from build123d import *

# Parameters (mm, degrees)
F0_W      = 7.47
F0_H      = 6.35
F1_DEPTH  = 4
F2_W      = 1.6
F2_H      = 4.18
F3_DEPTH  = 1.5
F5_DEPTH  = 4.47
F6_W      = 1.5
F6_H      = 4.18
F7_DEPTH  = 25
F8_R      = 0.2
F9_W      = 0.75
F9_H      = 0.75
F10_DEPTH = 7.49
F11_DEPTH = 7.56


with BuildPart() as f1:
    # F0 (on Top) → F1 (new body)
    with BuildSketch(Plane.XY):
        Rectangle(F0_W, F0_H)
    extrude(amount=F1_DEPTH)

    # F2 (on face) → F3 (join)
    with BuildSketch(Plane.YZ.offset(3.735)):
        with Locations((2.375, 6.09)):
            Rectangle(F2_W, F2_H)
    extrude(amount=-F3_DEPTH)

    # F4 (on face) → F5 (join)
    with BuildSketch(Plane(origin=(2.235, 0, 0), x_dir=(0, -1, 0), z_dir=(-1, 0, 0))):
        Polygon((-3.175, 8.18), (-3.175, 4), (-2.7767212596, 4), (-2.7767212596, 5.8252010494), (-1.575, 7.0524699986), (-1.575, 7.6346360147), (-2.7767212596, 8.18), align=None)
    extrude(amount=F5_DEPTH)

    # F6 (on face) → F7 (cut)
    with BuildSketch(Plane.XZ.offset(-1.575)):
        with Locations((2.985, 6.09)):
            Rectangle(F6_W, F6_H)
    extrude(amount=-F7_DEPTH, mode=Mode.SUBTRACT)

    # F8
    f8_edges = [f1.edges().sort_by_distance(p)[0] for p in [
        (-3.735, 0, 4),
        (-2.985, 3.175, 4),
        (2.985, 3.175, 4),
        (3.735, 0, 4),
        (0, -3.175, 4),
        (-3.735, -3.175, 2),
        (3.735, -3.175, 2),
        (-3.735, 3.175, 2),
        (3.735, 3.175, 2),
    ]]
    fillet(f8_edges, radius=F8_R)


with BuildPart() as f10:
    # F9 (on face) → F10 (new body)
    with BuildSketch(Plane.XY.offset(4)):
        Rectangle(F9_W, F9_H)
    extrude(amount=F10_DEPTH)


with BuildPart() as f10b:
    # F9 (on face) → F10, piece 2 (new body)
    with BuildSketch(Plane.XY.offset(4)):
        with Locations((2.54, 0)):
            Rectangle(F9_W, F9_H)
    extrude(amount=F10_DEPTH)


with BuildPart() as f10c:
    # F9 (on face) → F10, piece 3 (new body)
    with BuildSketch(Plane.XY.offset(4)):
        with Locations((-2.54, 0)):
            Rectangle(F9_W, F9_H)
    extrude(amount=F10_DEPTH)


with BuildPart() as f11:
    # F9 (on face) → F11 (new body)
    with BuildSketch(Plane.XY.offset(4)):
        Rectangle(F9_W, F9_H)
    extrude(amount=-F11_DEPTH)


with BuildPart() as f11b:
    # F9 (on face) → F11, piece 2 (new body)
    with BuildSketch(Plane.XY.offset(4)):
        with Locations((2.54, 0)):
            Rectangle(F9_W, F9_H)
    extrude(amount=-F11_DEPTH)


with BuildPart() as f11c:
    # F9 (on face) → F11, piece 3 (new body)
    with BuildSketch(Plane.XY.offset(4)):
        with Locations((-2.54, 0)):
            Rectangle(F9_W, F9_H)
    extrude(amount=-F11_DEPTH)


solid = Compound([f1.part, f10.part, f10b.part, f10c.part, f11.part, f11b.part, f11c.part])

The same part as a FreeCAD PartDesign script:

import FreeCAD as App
import Part
import Sketcher


def edges_at(feature, points):
    """Names of the edges that pass closest to the given points."""
    edges = feature.Shape.Edges
    near = lambda p: min(range(len(edges)), key=lambda i: edges[i].distToShape(Part.Vertex(*p))[0])
    return sorted({f"Edge{near(p) + 1}" for p in points})

doc = App.newDocument("Part")
body = doc.addObject("PartDesign::Body", "Body")

# Sketch on XY plane
sketch1 = doc.addObject("Sketcher::SketchObject", "Sketch")
body.addObject(sketch1)
sketch1.AttachmentSupport = (doc.XY_Plane, [""])
sketch1.MapMode = "FlatFace"
sketch1.addGeometry([
    Part.LineSegment(App.Vector(-4, 3, 0), App.Vector(-4, -3, 0)),
    Part.LineSegment(App.Vector(-4, -3, 0), App.Vector(4, -3, 0)),
    Part.LineSegment(App.Vector(4, -3, 0), App.Vector(4, 3, 0)),
    Part.LineSegment(App.Vector(4, 3, 0), App.Vector(-4, 3, 0)),
], False)
sketch1.addConstraint([
    Sketcher.Constraint("Coincident", 0, 2, 1, 1),
    Sketcher.Constraint("Coincident", 1, 2, 2, 1),
    Sketcher.Constraint("Coincident", 2, 2, 3, 1),
    Sketcher.Constraint("Coincident", 3, 2, 0, 1),
    Sketcher.Constraint("Vertical", 0),
    Sketcher.Constraint("Horizontal", 1),
    Sketcher.Constraint("Vertical", 2),
    Sketcher.Constraint("Horizontal", 3),
    Sketcher.Constraint("Symmetric", 0, 2, 2, 2, -1, 1),
    Sketcher.Constraint("DistanceX", 1, 1, 1, 2, 7.47),
    Sketcher.Constraint("DistanceY", 0, 2, 0, 1, 6.35),
])
pad1 = doc.addObject("PartDesign::Pad", "Pad")
body.addObject(pad1)
pad1.Profile = sketch1
pad1.Length = 4

# Sketch on YZ plane
sketch2 = doc.addObject("Sketcher::SketchObject", "Sketch001")
body.addObject(sketch2)
sketch2.AttachmentSupport = (doc.YZ_Plane, [""])
sketch2.MapMode = "FlatFace"
sketch2.AttachmentOffset = App.Placement(App.Vector(0, 0, 3.735), App.Rotation())
sketch2.addGeometry([
    Part.LineSegment(App.Vector(1.6, 8.2, 0), App.Vector(1.6, 4, 0)),
    Part.LineSegment(App.Vector(1.6, 4, 0), App.Vector(3.2, 4, 0)),
    Part.LineSegment(App.Vector(3.2, 4, 0), App.Vector(3.2, 8.2, 0)),
    Part.LineSegment(App.Vector(3.2, 8.2, 0), App.Vector(1.6, 8.2, 0)),
], False)
sketch2.addConstraint([
    Sketcher.Constraint("Coincident", 0, 2, 1, 1),
    Sketcher.Constraint("Coincident", 1, 2, 2, 1),
    Sketcher.Constraint("Coincident", 2, 2, 3, 1),
    Sketcher.Constraint("Coincident", 3, 2, 0, 1),
    Sketcher.Constraint("Vertical", 0),
    Sketcher.Constraint("Horizontal", 1),
    Sketcher.Constraint("Vertical", 2),
    Sketcher.Constraint("Horizontal", 3),
    Sketcher.Constraint("DistanceX", 1, 1, 1, 2, 1.6),
    Sketcher.Constraint("DistanceY", -1, 1, 0, 2, 4.0),
    Sketcher.Constraint("DistanceY", 0, 2, 0, 1, 4.18),
    Sketcher.Constraint("DistanceX", -1, 1, 0, 2, 1.575),
])
pad2 = doc.addObject("PartDesign::Pad", "Pad001")
body.addObject(pad2)
pad2.Profile = sketch2
pad2.Length = 1.5
pad2.Reversed = True

# Sketch on YZ plane
sketch3 = doc.addObject("Sketcher::SketchObject", "Sketch002")
body.addObject(sketch3)
sketch3.AttachmentSupport = (doc.YZ_Plane, [""])
sketch3.MapMode = "FlatFace"
sketch3.AttachmentOffset = App.Placement(App.Vector(0, 0, 2.235), App.Rotation())
sketch3.addGeometry([
    Part.LineSegment(App.Vector(3.17, 8.18, 0), App.Vector(3.17, 4, 0)),  # 0
    Part.LineSegment(App.Vector(3.17, 4, 0), App.Vector(2.78, 4, 0)),  # 1
    Part.LineSegment(App.Vector(2.78, 4, 0), App.Vector(2.78, 5.83, 0)),  # 2
    Part.LineSegment(App.Vector(2.78, 5.83, 0), App.Vector(1.57, 7.05, 0)),  # 3
    Part.LineSegment(App.Vector(1.57, 7.05, 0), App.Vector(1.57, 7.63, 0)),  # 4
    Part.LineSegment(App.Vector(1.57, 7.63, 0), App.Vector(2.78, 8.18, 0)),  # 5
    Part.LineSegment(App.Vector(2.78, 8.18, 0), App.Vector(3.17, 8.18, 0)),  # 6
], False)
sketch3.addConstraint([
    Sketcher.Constraint("Coincident", 0, 2, 1, 1),
    Sketcher.Constraint("Coincident", 1, 2, 2, 1),
    Sketcher.Constraint("Coincident", 2, 2, 3, 1),
    Sketcher.Constraint("Coincident", 3, 2, 4, 1),
    Sketcher.Constraint("Coincident", 4, 2, 5, 1),
    Sketcher.Constraint("Coincident", 5, 2, 6, 1),
    Sketcher.Constraint("Coincident", 6, 2, 0, 1),
    Sketcher.Constraint("Vertical", 0),
    Sketcher.Constraint("Horizontal", 1),
    Sketcher.Constraint("Vertical", 2),
    Sketcher.Constraint("Vertical", 4),
    Sketcher.Constraint("Horizontal", 6),
    Sketcher.Constraint("Vertical", 2, 2, 5, 2),
    Sketcher.Constraint("DistanceY", -1, 1, 0, 2, 4.0),
    Sketcher.Constraint("DistanceY", 0, 2, 0, 1, 4.18),
    Sketcher.Constraint("DistanceX", 3, 2, 0, 2, 1.6),
    Sketcher.Constraint("DistanceY", 2, 1, 2, 2, 1.825201),
    Sketcher.Constraint("DistanceX", -1, 1, 0, 2, 3.175),
    Sketcher.Constraint("DistanceX", 1, 2, 1, 1, 0.398279),
    Sketcher.Constraint("Distance", 3, 1.71765),
    Sketcher.Constraint("Distance", 5, 1.31968),
])
pad3 = doc.addObject("PartDesign::Pad", "Pad002")
body.addObject(pad3)
pad3.Profile = sketch3
pad3.Length = 4.47
pad3.Reversed = True

# Sketch on XZ plane
sketch4 = doc.addObject("Sketcher::SketchObject", "Sketch003")
body.addObject(sketch4)
sketch4.AttachmentSupport = (doc.XZ_Plane, [""])
sketch4.MapMode = "FlatFace"
sketch4.AttachmentOffset = App.Placement(App.Vector(0, 0, -1.575), App.Rotation())
sketch4.addGeometry([
    Part.LineSegment(App.Vector(2.2, 8.2, 0), App.Vector(2.2, 4, 0)),
    Part.LineSegment(App.Vector(2.2, 4, 0), App.Vector(3.7, 4, 0)),
    Part.LineSegment(App.Vector(3.7, 4, 0), App.Vector(3.7, 8.2, 0)),
    Part.LineSegment(App.Vector(3.7, 8.2, 0), App.Vector(2.2, 8.2, 0)),
], False)
sketch4.addConstraint([
    Sketcher.Constraint("Coincident", 0, 2, 1, 1),
    Sketcher.Constraint("Coincident", 1, 2, 2, 1),
    Sketcher.Constraint("Coincident", 2, 2, 3, 1),
    Sketcher.Constraint("Coincident", 3, 2, 0, 1),
    Sketcher.Constraint("Vertical", 0),
    Sketcher.Constraint("Horizontal", 1),
    Sketcher.Constraint("Vertical", 2),
    Sketcher.Constraint("Horizontal", 3),
    Sketcher.Constraint("DistanceX", 1, 1, 1, 2, 1.5),
    Sketcher.Constraint("DistanceY", -1, 1, 0, 2, 4.0),
    Sketcher.Constraint("DistanceY", 0, 2, 0, 1, 4.18),
    Sketcher.Constraint("DistanceX", -1, 1, 0, 2, 2.235),
])
pocket1 = doc.addObject("PartDesign::Pocket", "Pocket")
body.addObject(pocket1)
pocket1.Profile = sketch4
pocket1.Length = 25
doc.recompute()

fillet = doc.addObject("PartDesign::Fillet", "Fillet")
body.addObject(fillet)
fillet.Base = (pocket1, edges_at(pocket1, [
    (-3.735, 0, 4),
    (-2.985, 3.175, 4),
    (2.985, 3.175, 4),
    (3.735, 0, 4),
    (0, -3.175, 4),
    (-3.735, -3.175, 2),
    (3.735, -3.175, 2),
    (-3.735, 3.175, 2),
    (3.735, 3.175, 2),
]))
fillet.Radius = 0.2
body2 = doc.addObject("PartDesign::Body", "Body001")

# Sketch on XY plane
sketch5 = doc.addObject("Sketcher::SketchObject", "Sketch004")
body2.addObject(sketch5)
sketch5.AttachmentSupport = (doc.getObject("XY_Plane001"), [""])
sketch5.MapMode = "FlatFace"
sketch5.AttachmentOffset = App.Placement(App.Vector(0, 0, 4), App.Rotation())
sketch5.addGeometry([
    Part.LineSegment(App.Vector(-0.4, 0.4, 0), App.Vector(-0.4, -0.4, 0)),
    Part.LineSegment(App.Vector(-0.4, -0.4, 0), App.Vector(0.4, -0.4, 0)),
    Part.LineSegment(App.Vector(0.4, -0.4, 0), App.Vector(0.4, 0.4, 0)),
    Part.LineSegment(App.Vector(0.4, 0.4, 0), App.Vector(-0.4, 0.4, 0)),
], False)
sketch5.addConstraint([
    Sketcher.Constraint("Coincident", 0, 2, 1, 1),
    Sketcher.Constraint("Coincident", 1, 2, 2, 1),
    Sketcher.Constraint("Coincident", 2, 2, 3, 1),
    Sketcher.Constraint("Coincident", 3, 2, 0, 1),
    Sketcher.Constraint("Vertical", 0),
    Sketcher.Constraint("Horizontal", 1),
    Sketcher.Constraint("Vertical", 2),
    Sketcher.Constraint("Horizontal", 3),
    Sketcher.Constraint("Symmetric", 0, 2, 2, 2, -1, 1),
    Sketcher.Constraint("Equal", 3, 0),
    Sketcher.Constraint("DistanceX", 1, 1, 1, 2, 0.75),
])
pad4 = doc.addObject("PartDesign::Pad", "Pad003")
body2.addObject(pad4)
pad4.Profile = sketch5
pad4.Length = 7.49
body3 = doc.addObject("PartDesign::Body", "Body002")

# Sketch on XY plane
sketch6 = doc.addObject("Sketcher::SketchObject", "Sketch005")
body3.addObject(sketch6)
sketch6.AttachmentSupport = (doc.getObject("XY_Plane002"), [""])
sketch6.MapMode = "FlatFace"
sketch6.AttachmentOffset = App.Placement(App.Vector(0, 0, 4), App.Rotation())
sketch6.addGeometry([
    Part.LineSegment(App.Vector(2.2, 0.4, 0), App.Vector(2.2, -0.4, 0)),
    Part.LineSegment(App.Vector(2.2, -0.4, 0), App.Vector(2.9, -0.4, 0)),
    Part.LineSegment(App.Vector(2.9, -0.4, 0), App.Vector(2.9, 0.4, 0)),
    Part.LineSegment(App.Vector(2.9, 0.4, 0), App.Vector(2.2, 0.4, 0)),
], False)
sketch6.addConstraint([
    Sketcher.Constraint("Coincident", 0, 2, 1, 1),
    Sketcher.Constraint("Coincident", 1, 2, 2, 1),
    Sketcher.Constraint("Coincident", 2, 2, 3, 1),
    Sketcher.Constraint("Coincident", 3, 2, 0, 1),
    Sketcher.Constraint("Vertical", 0),
    Sketcher.Constraint("Horizontal", 1),
    Sketcher.Constraint("Vertical", 2),
    Sketcher.Constraint("Horizontal", 3),
    Sketcher.Constraint("Equal", 3, 0),
    Sketcher.Constraint("DistanceX", 1, 1, 1, 2, 0.75),
    Sketcher.Constraint("DistanceX", -1, 1, 0, 2, 2.165),
    Sketcher.Constraint("DistanceY", 0, 2, -1, 1, 0.375),
])
pad5 = doc.addObject("PartDesign::Pad", "Pad004")
body3.addObject(pad5)
pad5.Profile = sketch6
pad5.Length = 7.49
body4 = doc.addObject("PartDesign::Body", "Body003")

# Sketch on XY plane
sketch7 = doc.addObject("Sketcher::SketchObject", "Sketch006")
body4.addObject(sketch7)
sketch7.AttachmentSupport = (doc.getObject("XY_Plane003"), [""])
sketch7.MapMode = "FlatFace"
sketch7.AttachmentOffset = App.Placement(App.Vector(0, 0, 4), App.Rotation())
sketch7.addGeometry([
    Part.LineSegment(App.Vector(-2.9, 0.4, 0), App.Vector(-2.9, -0.4, 0)),
    Part.LineSegment(App.Vector(-2.9, -0.4, 0), App.Vector(-2.2, -0.4, 0)),
    Part.LineSegment(App.Vector(-2.2, -0.4, 0), App.Vector(-2.2, 0.4, 0)),
    Part.LineSegment(App.Vector(-2.2, 0.4, 0), App.Vector(-2.9, 0.4, 0)),
], False)
sketch7.addConstraint([
    Sketcher.Constraint("Coincident", 0, 2, 1, 1),
    Sketcher.Constraint("Coincident", 1, 2, 2, 1),
    Sketcher.Constraint("Coincident", 2, 2, 3, 1),
    Sketcher.Constraint("Coincident", 3, 2, 0, 1),
    Sketcher.Constraint("Vertical", 0),
    Sketcher.Constraint("Horizontal", 1),
    Sketcher.Constraint("Vertical", 2),
    Sketcher.Constraint("Horizontal", 3),
    Sketcher.Constraint("Equal", 3, 0),
    Sketcher.Constraint("DistanceX", 1, 1, 1, 2, 0.75),
    Sketcher.Constraint("DistanceX", 0, 2, -1, 1, 2.915),
    Sketcher.Constraint("DistanceY", 0, 2, -1, 1, 0.375),
])
pad6 = doc.addObject("PartDesign::Pad", "Pad005")
body4.addObject(pad6)
pad6.Profile = sketch7
pad6.Length = 7.49
body5 = doc.addObject("PartDesign::Body", "Body004")

# Sketch on XY plane
sketch8 = doc.addObject("Sketcher::SketchObject", "Sketch007")
body5.addObject(sketch8)
sketch8.AttachmentSupport = (doc.getObject("XY_Plane004"), [""])
sketch8.MapMode = "FlatFace"
sketch8.AttachmentOffset = App.Placement(App.Vector(0, 0, 4), App.Rotation())
sketch8.addGeometry([
    Part.LineSegment(App.Vector(-0.4, 0.4, 0), App.Vector(-0.4, -0.4, 0)),
    Part.LineSegment(App.Vector(-0.4, -0.4, 0), App.Vector(0.4, -0.4, 0)),
    Part.LineSegment(App.Vector(0.4, -0.4, 0), App.Vector(0.4, 0.4, 0)),
    Part.LineSegment(App.Vector(0.4, 0.4, 0), App.Vector(-0.4, 0.4, 0)),
], False)
sketch8.addConstraint([
    Sketcher.Constraint("Coincident", 0, 2, 1, 1),
    Sketcher.Constraint("Coincident", 1, 2, 2, 1),
    Sketcher.Constraint("Coincident", 2, 2, 3, 1),
    Sketcher.Constraint("Coincident", 3, 2, 0, 1),
    Sketcher.Constraint("Vertical", 0),
    Sketcher.Constraint("Horizontal", 1),
    Sketcher.Constraint("Vertical", 2),
    Sketcher.Constraint("Horizontal", 3),
    Sketcher.Constraint("Symmetric", 0, 2, 2, 2, -1, 1),
    Sketcher.Constraint("Equal", 3, 0),
    Sketcher.Constraint("DistanceX", 1, 1, 1, 2, 0.75),
])
pad7 = doc.addObject("PartDesign::Pad", "Pad006")
body5.addObject(pad7)
pad7.Profile = sketch8
pad7.Length = 7.56
pad7.Reversed = True
body6 = doc.addObject("PartDesign::Body", "Body005")

# Sketch on XY plane
sketch9 = doc.addObject("Sketcher::SketchObject", "Sketch008")
body6.addObject(sketch9)
sketch9.AttachmentSupport = (doc.getObject("XY_Plane005"), [""])
sketch9.MapMode = "FlatFace"
sketch9.AttachmentOffset = App.Placement(App.Vector(0, 0, 4), App.Rotation())
sketch9.addGeometry([
    Part.LineSegment(App.Vector(2.2, 0.4, 0), App.Vector(2.2, -0.4, 0)),
    Part.LineSegment(App.Vector(2.2, -0.4, 0), App.Vector(2.9, -0.4, 0)),
    Part.LineSegment(App.Vector(2.9, -0.4, 0), App.Vector(2.9, 0.4, 0)),
    Part.LineSegment(App.Vector(2.9, 0.4, 0), App.Vector(2.2, 0.4, 0)),
], False)
sketch9.addConstraint([
    Sketcher.Constraint("Coincident", 0, 2, 1, 1),
    Sketcher.Constraint("Coincident", 1, 2, 2, 1),
    Sketcher.Constraint("Coincident", 2, 2, 3, 1),
    Sketcher.Constraint("Coincident", 3, 2, 0, 1),
    Sketcher.Constraint("Vertical", 0),
    Sketcher.Constraint("Horizontal", 1),
    Sketcher.Constraint("Vertical", 2),
    Sketcher.Constraint("Horizontal", 3),
    Sketcher.Constraint("Equal", 3, 0),
    Sketcher.Constraint("DistanceX", 1, 1, 1, 2, 0.75),
    Sketcher.Constraint("DistanceX", -1, 1, 0, 2, 2.165),
    Sketcher.Constraint("DistanceY", 0, 2, -1, 1, 0.375),
])
pad8 = doc.addObject("PartDesign::Pad", "Pad007")
body6.addObject(pad8)
pad8.Profile = sketch9
pad8.Length = 7.56
pad8.Reversed = True
body7 = doc.addObject("PartDesign::Body", "Body006")

# Sketch on XY plane
sketch10 = doc.addObject("Sketcher::SketchObject", "Sketch009")
body7.addObject(sketch10)
sketch10.AttachmentSupport = (doc.getObject("XY_Plane006"), [""])
sketch10.MapMode = "FlatFace"
sketch10.AttachmentOffset = App.Placement(App.Vector(0, 0, 4), App.Rotation())
sketch10.addGeometry([
    Part.LineSegment(App.Vector(-2.9, 0.4, 0), App.Vector(-2.9, -0.4, 0)),
    Part.LineSegment(App.Vector(-2.9, -0.4, 0), App.Vector(-2.2, -0.4, 0)),
    Part.LineSegment(App.Vector(-2.2, -0.4, 0), App.Vector(-2.2, 0.4, 0)),
    Part.LineSegment(App.Vector(-2.2, 0.4, 0), App.Vector(-2.9, 0.4, 0)),
], False)
sketch10.addConstraint([
    Sketcher.Constraint("Coincident", 0, 2, 1, 1),
    Sketcher.Constraint("Coincident", 1, 2, 2, 1),
    Sketcher.Constraint("Coincident", 2, 2, 3, 1),
    Sketcher.Constraint("Coincident", 3, 2, 0, 1),
    Sketcher.Constraint("Vertical", 0),
    Sketcher.Constraint("Horizontal", 1),
    Sketcher.Constraint("Vertical", 2),
    Sketcher.Constraint("Horizontal", 3),
    Sketcher.Constraint("Equal", 3, 0),
    Sketcher.Constraint("DistanceX", 1, 1, 1, 2, 0.75),
    Sketcher.Constraint("DistanceX", 0, 2, -1, 1, 2.915),
    Sketcher.Constraint("DistanceY", 0, 2, -1, 1, 0.375),
])
pad9 = doc.addObject("PartDesign::Pad", "Pad008")
body7.addObject(pad9)
pad9.Profile = sketch10
pad9.Length = 7.56
pad9.Reversed = True

doc.recompute()
